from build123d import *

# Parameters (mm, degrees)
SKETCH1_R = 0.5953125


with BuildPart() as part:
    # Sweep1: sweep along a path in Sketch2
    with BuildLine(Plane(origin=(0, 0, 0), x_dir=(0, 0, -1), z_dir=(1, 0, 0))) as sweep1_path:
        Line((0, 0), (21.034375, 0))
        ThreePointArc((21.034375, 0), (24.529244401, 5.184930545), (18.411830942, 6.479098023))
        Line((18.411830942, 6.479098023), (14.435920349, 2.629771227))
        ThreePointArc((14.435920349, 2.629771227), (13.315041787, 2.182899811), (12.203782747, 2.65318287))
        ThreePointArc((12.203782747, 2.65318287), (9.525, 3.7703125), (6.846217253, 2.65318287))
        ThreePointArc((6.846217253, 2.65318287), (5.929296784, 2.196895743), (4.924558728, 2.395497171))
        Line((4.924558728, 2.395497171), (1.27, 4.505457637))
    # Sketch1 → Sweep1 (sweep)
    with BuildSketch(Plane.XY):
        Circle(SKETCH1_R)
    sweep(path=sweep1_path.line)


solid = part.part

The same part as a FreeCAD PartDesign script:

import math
import FreeCAD as App
import Part
import Sketcher
Q = App.Units.Quantity

doc = App.newDocument("Part")
params = doc.addObject("Spreadsheet::Sheet", "Params")
for row, (alias, value) in enumerate([
    ("sketch1_diameter", "0.046875 in"),
    ("sketch2_radius", "0.0625 in"),
    ("sketch2_height", "0.828125 in"),
], start=1):
    params.set(f"A{row}", alias)
    params.set(f"B{row}", "=" + value)
    params.setAlias(f"B{row}", alias)

body = doc.addObject("PartDesign::Body", "Body")

# Sketch on XY plane
sketch1 = body.newObject("Sketcher::SketchObject", "Sketch")
sketch1.AttachmentSupport = (doc.getObject("XY_Plane"), [""])
sketch1.MapMode = "FlatFace"
sketch1.addGeometry(Part.Circle(App.Vector(0, 0, 0), App.Vector(0, 0, 1), 0.595313), False)
sketch1.addConstraint([
    Sketcher.Constraint("Coincident", 0, 3, -1, 1),
    Sketcher.Constraint("Diameter", 0, Q("0.046875 in")),
])
sketch1.setExpression("Constraints[1]", "Params.sketch1_diameter")

# Sketch on YZ plane
sketch2 = body.newObject("Sketcher::SketchObject", "Sketch001")
sketch2.AttachmentSupport = (doc.getObject("YZ_Plane"), [""])
sketch2.MapMode = "FlatFace"
sketch2.addGeometry([
    Part.LineSegment(App.Vector(0, 0, 0), App.Vector(0, -21.034375, 0)),  # 0
    Part.ArcOfCircle(Part.Circle(App.Vector(3.770313, -21.034375, 0), App.Vector(0, 0, 1), 3.770313), math.radians(180), math.radians(404.073244)),  # 1
    Part.LineSegment(App.Vector(6.479098, -18.411831, 0), App.Vector(2.629771, -14.43592, 0)),  # 2
    Part.ArcOfCircle(Part.Circle(App.Vector(3.770313, -13.331691, 0), App.Vector(0, 0, 1), 1.5875), math.radians(134.724913), math.radians(224.073244)),  # 3
    Part.ArcOfCircle(Part.Circle(App.Vector(0, -9.525, 0), App.Vector(0, 0, 1), 3.770313), math.radians(-45.275087), math.radians(45.275087)),  # 4
    Part.ArcOfCircle(Part.Circle(App.Vector(3.770313, -5.718309, 0), App.Vector(0, 0, 1), 1.5875), math.radians(150), math.radians(225.275087)),  # 5
    Part.LineSegment(App.Vector(2.395497, -4.924559, 0), App.Vector(4.505458, -1.27, 0)),  # 6
], False)
sketch2.addConstraint([
    Sketcher.Constraint("Tangent", 0, 2, 1, 1),
    Sketcher.Constraint("Tangent", 1, 2, 2, 1),
    Sketcher.Constraint("Tangent", 2, 2, 3, 2),
    Sketcher.Constraint("Tangent", 3, 1, 4, 1),
    Sketcher.Constraint("Tangent", 4, 2, 5, 2),
    Sketcher.Constraint("Tangent", 5, 1, 6, 1),
    Sketcher.Constraint("Vertical", 0),
    Sketcher.Constraint("Coincident", 0, 1, -1, 1),
    Sketcher.Constraint("Equal", 1, 4),
    Sketcher.Constraint("Equal", 3, 5),
    Sketcher.Constraint("PointOnObject", 4, 3, -2),
    Sketcher.Constraint("Vertical", 1, 3, 3, 3),
    Sketcher.Constraint("Vertical", 3, 3, 5, 3),
    Sketcher.Constraint("Angle", 6, Q("60 deg")),
    Sketcher.Constraint("Radius", 3, Q("0.0625 in")),
    Sketcher.Constraint("DistanceY", 0, 2, 0, 1, Q("0.828125 in")),
    Sketcher.Constraint("DistanceY", 6, 2, -1, 1, Q("0.05 in")),
    Sketcher.Constraint("DistanceY", 4, 3, -1, 1, Q("0.375 in")),
    Sketcher.Constraint("Radius", 1, 3.770313),
])
sketch2.setExpression("Constraints[14]", "Params.sketch2_radius")
sketch2.setExpression("Constraints[15]", "Params.sketch2_height")
doc.recompute()

additivepipe = body.newObject("PartDesign::AdditivePipe", "AdditivePipe")
additivepipe.Profile = sketch1
additivepipe.Spine = (sketch2, ["Edge1", "Edge2", "Edge3", "Edge4", "Edge5", "Edge6", "Edge7"])

doc.recompute()
